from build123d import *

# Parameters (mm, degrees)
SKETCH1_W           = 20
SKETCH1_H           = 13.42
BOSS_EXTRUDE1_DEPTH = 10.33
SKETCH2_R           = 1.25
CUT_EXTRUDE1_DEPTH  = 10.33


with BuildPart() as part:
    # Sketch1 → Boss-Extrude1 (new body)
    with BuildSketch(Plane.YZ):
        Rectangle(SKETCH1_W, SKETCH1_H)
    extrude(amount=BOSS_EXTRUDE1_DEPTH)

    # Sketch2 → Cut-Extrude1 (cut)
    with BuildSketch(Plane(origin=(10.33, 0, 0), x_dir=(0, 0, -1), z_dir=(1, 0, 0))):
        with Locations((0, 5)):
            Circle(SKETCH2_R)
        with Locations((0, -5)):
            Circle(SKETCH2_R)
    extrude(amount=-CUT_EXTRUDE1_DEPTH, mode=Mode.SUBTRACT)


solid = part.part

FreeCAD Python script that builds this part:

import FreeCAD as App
import Part
import Sketcher

V = App.Vector

doc = App.newDocument("Part")
body = doc.addObject("PartDesign::Body", "Body")

sketch1 = doc.addObject("Sketcher::SketchObject", "Sketch")
body.addObject(sketch1)
sketch1.AttachmentSupport = (doc.YZ_Plane, [""])
sketch1.MapMode = "FlatFace"
sketch1.addGeometry(Part.LineSegment(V(-10, 7, 0), V(-10, -7, 0)), False)
sketch1.addGeometry(Part.LineSegment(V(-10, -7, 0), V(10, -7, 0)), False)
sketch1.addGeometry(Part.LineSegment(V(10, -7, 0), V(10, 7, 0)), False)
sketch1.addGeometry(Part.LineSegment(V(10, 7, 0), V(-10, 7, 0)), False)
sketch1.addConstraint(Sketcher.Constraint("Coincident", 0, 2, 1, 1))
sketch1.addConstraint(Sketcher.Constraint("Coincident", 1, 2, 2, 1))
sketch1.addConstraint(Sketcher.Constraint("Coincident", 2, 2, 3, 1))
sketch1.addConstraint(Sketcher.Constraint("Coincident", 3, 2, 0, 1))
sketch1.addConstraint(Sketcher.Constraint("Vertical", 0))
sketch1.addConstraint(Sketcher.Constraint("Horizontal", 1))
sketch1.addConstraint(Sketcher.Constraint("Vertical", 2))
sketch1.addConstraint(Sketcher.Constraint("Horizontal", 3))
sketch1.addConstraint(Sketcher.Constraint("Symmetric", 0, 2, 2, 2, -1, 1))
sketch1.addConstraint(Sketcher.Constraint("DistanceX", 1, 1, 1, 2, 20.0))
sketch1.addConstraint(Sketcher.Constraint("DistanceY", 0, 2, 0, 1, 13.42))
pad1 = doc.addObject("PartDesign::Pad", "Pad")
body.addObject(pad1)
pad1.Profile = sketch1
pad1.Length = 10.33

sketch2 = doc.addObject("Sketcher::SketchObject", "Sketch001")
body.addObject(sketch2)
sketch2.AttachmentSupport = (doc.YZ_Plane, [""])
sketch2.MapMode = "FlatFace"
sketch2.AttachmentOffset = App.Placement(V(0, 0, 10.33), App.Rotation())
sketch2.addGeometry(Part.Circle(V(5, 0, 0), V(0, 0, 1), 1.2), False)
sketch2.addGeometry(Part.Circle(V(-5, 0, 0), V(0, 0, 1), 1.2), False)
sketch2.addConstraint(Sketcher.Constraint("Equal", 0, 1))
sketch2.addConstraint(Sketcher.Constraint("Symmetric", 0, 3, 1, 3, -1, 1))
sketch2.addConstraint(Sketcher.Constraint("PointOnObject", 0, 3, -1))
sketch2.addConstraint(Sketcher.Constraint("Diameter", 0, 2.5))
sketch2.addConstraint(Sketcher.Constraint("DistanceX", -1, 1, 0, 3, 5.0))
pocket1 = doc.addObject("PartDesign::Pocket", "Pocket")
body.addObject(pocket1)
pocket1.Profile = sketch2
pocket1.Length = 10.33

doc.recompute()
